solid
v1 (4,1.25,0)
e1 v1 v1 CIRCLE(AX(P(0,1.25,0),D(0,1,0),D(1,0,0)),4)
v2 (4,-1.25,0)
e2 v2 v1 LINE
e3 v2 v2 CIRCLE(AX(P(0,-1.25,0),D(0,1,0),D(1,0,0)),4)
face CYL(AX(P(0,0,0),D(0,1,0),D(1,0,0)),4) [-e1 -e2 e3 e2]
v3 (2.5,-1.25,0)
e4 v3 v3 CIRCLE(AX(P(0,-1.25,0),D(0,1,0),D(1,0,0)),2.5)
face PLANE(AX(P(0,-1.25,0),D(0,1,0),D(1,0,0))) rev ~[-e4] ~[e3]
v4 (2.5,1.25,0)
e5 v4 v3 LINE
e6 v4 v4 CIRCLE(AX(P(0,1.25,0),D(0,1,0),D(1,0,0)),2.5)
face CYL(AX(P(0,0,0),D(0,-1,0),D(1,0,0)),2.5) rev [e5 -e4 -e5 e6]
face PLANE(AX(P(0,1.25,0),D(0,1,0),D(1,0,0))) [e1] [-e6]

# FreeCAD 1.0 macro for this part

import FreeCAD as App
import Part
import Sketcher

V = App.Vector
Q = App.Units.Quantity

doc = App.newDocument("Part")
body = doc.addObject("PartDesign::Body", "Body")

# Sketch on XZ plane
sketch1 = body.newObject("Sketcher::SketchObject", "Sketch")
sketch1.AttachmentSupport = (doc.getObject("XZ_Plane"), [""])
sketch1.MapMode = "FlatFace"
sketch1.addGeometry(Part.Circle(V(0, 0, 0), V(0, 0, 1), 4), False)
sketch1.addGeometry(Part.Circle(V(0, 0, 0), V(0, 0, 1), 2.5), False)
sketch1.addConstraint(Sketcher.Constraint("Coincident", 0, 3, -1, 1))
sketch1.addConstraint(Sketcher.Constraint("Coincident", 1, 3, -1, 1))
sketch1.addConstraint(Sketcher.Constraint("Diameter", 0, Q("8 mm")))
sketch1.addConstraint(Sketcher.Constraint("Diameter", 1, Q("5 mm")))
pad1 = body.newObject("PartDesign::Pad", "Pad")
pad1.Profile = sketch1
pad1.Length = 2.5
pad1.Midplane = True

doc.recompute()
